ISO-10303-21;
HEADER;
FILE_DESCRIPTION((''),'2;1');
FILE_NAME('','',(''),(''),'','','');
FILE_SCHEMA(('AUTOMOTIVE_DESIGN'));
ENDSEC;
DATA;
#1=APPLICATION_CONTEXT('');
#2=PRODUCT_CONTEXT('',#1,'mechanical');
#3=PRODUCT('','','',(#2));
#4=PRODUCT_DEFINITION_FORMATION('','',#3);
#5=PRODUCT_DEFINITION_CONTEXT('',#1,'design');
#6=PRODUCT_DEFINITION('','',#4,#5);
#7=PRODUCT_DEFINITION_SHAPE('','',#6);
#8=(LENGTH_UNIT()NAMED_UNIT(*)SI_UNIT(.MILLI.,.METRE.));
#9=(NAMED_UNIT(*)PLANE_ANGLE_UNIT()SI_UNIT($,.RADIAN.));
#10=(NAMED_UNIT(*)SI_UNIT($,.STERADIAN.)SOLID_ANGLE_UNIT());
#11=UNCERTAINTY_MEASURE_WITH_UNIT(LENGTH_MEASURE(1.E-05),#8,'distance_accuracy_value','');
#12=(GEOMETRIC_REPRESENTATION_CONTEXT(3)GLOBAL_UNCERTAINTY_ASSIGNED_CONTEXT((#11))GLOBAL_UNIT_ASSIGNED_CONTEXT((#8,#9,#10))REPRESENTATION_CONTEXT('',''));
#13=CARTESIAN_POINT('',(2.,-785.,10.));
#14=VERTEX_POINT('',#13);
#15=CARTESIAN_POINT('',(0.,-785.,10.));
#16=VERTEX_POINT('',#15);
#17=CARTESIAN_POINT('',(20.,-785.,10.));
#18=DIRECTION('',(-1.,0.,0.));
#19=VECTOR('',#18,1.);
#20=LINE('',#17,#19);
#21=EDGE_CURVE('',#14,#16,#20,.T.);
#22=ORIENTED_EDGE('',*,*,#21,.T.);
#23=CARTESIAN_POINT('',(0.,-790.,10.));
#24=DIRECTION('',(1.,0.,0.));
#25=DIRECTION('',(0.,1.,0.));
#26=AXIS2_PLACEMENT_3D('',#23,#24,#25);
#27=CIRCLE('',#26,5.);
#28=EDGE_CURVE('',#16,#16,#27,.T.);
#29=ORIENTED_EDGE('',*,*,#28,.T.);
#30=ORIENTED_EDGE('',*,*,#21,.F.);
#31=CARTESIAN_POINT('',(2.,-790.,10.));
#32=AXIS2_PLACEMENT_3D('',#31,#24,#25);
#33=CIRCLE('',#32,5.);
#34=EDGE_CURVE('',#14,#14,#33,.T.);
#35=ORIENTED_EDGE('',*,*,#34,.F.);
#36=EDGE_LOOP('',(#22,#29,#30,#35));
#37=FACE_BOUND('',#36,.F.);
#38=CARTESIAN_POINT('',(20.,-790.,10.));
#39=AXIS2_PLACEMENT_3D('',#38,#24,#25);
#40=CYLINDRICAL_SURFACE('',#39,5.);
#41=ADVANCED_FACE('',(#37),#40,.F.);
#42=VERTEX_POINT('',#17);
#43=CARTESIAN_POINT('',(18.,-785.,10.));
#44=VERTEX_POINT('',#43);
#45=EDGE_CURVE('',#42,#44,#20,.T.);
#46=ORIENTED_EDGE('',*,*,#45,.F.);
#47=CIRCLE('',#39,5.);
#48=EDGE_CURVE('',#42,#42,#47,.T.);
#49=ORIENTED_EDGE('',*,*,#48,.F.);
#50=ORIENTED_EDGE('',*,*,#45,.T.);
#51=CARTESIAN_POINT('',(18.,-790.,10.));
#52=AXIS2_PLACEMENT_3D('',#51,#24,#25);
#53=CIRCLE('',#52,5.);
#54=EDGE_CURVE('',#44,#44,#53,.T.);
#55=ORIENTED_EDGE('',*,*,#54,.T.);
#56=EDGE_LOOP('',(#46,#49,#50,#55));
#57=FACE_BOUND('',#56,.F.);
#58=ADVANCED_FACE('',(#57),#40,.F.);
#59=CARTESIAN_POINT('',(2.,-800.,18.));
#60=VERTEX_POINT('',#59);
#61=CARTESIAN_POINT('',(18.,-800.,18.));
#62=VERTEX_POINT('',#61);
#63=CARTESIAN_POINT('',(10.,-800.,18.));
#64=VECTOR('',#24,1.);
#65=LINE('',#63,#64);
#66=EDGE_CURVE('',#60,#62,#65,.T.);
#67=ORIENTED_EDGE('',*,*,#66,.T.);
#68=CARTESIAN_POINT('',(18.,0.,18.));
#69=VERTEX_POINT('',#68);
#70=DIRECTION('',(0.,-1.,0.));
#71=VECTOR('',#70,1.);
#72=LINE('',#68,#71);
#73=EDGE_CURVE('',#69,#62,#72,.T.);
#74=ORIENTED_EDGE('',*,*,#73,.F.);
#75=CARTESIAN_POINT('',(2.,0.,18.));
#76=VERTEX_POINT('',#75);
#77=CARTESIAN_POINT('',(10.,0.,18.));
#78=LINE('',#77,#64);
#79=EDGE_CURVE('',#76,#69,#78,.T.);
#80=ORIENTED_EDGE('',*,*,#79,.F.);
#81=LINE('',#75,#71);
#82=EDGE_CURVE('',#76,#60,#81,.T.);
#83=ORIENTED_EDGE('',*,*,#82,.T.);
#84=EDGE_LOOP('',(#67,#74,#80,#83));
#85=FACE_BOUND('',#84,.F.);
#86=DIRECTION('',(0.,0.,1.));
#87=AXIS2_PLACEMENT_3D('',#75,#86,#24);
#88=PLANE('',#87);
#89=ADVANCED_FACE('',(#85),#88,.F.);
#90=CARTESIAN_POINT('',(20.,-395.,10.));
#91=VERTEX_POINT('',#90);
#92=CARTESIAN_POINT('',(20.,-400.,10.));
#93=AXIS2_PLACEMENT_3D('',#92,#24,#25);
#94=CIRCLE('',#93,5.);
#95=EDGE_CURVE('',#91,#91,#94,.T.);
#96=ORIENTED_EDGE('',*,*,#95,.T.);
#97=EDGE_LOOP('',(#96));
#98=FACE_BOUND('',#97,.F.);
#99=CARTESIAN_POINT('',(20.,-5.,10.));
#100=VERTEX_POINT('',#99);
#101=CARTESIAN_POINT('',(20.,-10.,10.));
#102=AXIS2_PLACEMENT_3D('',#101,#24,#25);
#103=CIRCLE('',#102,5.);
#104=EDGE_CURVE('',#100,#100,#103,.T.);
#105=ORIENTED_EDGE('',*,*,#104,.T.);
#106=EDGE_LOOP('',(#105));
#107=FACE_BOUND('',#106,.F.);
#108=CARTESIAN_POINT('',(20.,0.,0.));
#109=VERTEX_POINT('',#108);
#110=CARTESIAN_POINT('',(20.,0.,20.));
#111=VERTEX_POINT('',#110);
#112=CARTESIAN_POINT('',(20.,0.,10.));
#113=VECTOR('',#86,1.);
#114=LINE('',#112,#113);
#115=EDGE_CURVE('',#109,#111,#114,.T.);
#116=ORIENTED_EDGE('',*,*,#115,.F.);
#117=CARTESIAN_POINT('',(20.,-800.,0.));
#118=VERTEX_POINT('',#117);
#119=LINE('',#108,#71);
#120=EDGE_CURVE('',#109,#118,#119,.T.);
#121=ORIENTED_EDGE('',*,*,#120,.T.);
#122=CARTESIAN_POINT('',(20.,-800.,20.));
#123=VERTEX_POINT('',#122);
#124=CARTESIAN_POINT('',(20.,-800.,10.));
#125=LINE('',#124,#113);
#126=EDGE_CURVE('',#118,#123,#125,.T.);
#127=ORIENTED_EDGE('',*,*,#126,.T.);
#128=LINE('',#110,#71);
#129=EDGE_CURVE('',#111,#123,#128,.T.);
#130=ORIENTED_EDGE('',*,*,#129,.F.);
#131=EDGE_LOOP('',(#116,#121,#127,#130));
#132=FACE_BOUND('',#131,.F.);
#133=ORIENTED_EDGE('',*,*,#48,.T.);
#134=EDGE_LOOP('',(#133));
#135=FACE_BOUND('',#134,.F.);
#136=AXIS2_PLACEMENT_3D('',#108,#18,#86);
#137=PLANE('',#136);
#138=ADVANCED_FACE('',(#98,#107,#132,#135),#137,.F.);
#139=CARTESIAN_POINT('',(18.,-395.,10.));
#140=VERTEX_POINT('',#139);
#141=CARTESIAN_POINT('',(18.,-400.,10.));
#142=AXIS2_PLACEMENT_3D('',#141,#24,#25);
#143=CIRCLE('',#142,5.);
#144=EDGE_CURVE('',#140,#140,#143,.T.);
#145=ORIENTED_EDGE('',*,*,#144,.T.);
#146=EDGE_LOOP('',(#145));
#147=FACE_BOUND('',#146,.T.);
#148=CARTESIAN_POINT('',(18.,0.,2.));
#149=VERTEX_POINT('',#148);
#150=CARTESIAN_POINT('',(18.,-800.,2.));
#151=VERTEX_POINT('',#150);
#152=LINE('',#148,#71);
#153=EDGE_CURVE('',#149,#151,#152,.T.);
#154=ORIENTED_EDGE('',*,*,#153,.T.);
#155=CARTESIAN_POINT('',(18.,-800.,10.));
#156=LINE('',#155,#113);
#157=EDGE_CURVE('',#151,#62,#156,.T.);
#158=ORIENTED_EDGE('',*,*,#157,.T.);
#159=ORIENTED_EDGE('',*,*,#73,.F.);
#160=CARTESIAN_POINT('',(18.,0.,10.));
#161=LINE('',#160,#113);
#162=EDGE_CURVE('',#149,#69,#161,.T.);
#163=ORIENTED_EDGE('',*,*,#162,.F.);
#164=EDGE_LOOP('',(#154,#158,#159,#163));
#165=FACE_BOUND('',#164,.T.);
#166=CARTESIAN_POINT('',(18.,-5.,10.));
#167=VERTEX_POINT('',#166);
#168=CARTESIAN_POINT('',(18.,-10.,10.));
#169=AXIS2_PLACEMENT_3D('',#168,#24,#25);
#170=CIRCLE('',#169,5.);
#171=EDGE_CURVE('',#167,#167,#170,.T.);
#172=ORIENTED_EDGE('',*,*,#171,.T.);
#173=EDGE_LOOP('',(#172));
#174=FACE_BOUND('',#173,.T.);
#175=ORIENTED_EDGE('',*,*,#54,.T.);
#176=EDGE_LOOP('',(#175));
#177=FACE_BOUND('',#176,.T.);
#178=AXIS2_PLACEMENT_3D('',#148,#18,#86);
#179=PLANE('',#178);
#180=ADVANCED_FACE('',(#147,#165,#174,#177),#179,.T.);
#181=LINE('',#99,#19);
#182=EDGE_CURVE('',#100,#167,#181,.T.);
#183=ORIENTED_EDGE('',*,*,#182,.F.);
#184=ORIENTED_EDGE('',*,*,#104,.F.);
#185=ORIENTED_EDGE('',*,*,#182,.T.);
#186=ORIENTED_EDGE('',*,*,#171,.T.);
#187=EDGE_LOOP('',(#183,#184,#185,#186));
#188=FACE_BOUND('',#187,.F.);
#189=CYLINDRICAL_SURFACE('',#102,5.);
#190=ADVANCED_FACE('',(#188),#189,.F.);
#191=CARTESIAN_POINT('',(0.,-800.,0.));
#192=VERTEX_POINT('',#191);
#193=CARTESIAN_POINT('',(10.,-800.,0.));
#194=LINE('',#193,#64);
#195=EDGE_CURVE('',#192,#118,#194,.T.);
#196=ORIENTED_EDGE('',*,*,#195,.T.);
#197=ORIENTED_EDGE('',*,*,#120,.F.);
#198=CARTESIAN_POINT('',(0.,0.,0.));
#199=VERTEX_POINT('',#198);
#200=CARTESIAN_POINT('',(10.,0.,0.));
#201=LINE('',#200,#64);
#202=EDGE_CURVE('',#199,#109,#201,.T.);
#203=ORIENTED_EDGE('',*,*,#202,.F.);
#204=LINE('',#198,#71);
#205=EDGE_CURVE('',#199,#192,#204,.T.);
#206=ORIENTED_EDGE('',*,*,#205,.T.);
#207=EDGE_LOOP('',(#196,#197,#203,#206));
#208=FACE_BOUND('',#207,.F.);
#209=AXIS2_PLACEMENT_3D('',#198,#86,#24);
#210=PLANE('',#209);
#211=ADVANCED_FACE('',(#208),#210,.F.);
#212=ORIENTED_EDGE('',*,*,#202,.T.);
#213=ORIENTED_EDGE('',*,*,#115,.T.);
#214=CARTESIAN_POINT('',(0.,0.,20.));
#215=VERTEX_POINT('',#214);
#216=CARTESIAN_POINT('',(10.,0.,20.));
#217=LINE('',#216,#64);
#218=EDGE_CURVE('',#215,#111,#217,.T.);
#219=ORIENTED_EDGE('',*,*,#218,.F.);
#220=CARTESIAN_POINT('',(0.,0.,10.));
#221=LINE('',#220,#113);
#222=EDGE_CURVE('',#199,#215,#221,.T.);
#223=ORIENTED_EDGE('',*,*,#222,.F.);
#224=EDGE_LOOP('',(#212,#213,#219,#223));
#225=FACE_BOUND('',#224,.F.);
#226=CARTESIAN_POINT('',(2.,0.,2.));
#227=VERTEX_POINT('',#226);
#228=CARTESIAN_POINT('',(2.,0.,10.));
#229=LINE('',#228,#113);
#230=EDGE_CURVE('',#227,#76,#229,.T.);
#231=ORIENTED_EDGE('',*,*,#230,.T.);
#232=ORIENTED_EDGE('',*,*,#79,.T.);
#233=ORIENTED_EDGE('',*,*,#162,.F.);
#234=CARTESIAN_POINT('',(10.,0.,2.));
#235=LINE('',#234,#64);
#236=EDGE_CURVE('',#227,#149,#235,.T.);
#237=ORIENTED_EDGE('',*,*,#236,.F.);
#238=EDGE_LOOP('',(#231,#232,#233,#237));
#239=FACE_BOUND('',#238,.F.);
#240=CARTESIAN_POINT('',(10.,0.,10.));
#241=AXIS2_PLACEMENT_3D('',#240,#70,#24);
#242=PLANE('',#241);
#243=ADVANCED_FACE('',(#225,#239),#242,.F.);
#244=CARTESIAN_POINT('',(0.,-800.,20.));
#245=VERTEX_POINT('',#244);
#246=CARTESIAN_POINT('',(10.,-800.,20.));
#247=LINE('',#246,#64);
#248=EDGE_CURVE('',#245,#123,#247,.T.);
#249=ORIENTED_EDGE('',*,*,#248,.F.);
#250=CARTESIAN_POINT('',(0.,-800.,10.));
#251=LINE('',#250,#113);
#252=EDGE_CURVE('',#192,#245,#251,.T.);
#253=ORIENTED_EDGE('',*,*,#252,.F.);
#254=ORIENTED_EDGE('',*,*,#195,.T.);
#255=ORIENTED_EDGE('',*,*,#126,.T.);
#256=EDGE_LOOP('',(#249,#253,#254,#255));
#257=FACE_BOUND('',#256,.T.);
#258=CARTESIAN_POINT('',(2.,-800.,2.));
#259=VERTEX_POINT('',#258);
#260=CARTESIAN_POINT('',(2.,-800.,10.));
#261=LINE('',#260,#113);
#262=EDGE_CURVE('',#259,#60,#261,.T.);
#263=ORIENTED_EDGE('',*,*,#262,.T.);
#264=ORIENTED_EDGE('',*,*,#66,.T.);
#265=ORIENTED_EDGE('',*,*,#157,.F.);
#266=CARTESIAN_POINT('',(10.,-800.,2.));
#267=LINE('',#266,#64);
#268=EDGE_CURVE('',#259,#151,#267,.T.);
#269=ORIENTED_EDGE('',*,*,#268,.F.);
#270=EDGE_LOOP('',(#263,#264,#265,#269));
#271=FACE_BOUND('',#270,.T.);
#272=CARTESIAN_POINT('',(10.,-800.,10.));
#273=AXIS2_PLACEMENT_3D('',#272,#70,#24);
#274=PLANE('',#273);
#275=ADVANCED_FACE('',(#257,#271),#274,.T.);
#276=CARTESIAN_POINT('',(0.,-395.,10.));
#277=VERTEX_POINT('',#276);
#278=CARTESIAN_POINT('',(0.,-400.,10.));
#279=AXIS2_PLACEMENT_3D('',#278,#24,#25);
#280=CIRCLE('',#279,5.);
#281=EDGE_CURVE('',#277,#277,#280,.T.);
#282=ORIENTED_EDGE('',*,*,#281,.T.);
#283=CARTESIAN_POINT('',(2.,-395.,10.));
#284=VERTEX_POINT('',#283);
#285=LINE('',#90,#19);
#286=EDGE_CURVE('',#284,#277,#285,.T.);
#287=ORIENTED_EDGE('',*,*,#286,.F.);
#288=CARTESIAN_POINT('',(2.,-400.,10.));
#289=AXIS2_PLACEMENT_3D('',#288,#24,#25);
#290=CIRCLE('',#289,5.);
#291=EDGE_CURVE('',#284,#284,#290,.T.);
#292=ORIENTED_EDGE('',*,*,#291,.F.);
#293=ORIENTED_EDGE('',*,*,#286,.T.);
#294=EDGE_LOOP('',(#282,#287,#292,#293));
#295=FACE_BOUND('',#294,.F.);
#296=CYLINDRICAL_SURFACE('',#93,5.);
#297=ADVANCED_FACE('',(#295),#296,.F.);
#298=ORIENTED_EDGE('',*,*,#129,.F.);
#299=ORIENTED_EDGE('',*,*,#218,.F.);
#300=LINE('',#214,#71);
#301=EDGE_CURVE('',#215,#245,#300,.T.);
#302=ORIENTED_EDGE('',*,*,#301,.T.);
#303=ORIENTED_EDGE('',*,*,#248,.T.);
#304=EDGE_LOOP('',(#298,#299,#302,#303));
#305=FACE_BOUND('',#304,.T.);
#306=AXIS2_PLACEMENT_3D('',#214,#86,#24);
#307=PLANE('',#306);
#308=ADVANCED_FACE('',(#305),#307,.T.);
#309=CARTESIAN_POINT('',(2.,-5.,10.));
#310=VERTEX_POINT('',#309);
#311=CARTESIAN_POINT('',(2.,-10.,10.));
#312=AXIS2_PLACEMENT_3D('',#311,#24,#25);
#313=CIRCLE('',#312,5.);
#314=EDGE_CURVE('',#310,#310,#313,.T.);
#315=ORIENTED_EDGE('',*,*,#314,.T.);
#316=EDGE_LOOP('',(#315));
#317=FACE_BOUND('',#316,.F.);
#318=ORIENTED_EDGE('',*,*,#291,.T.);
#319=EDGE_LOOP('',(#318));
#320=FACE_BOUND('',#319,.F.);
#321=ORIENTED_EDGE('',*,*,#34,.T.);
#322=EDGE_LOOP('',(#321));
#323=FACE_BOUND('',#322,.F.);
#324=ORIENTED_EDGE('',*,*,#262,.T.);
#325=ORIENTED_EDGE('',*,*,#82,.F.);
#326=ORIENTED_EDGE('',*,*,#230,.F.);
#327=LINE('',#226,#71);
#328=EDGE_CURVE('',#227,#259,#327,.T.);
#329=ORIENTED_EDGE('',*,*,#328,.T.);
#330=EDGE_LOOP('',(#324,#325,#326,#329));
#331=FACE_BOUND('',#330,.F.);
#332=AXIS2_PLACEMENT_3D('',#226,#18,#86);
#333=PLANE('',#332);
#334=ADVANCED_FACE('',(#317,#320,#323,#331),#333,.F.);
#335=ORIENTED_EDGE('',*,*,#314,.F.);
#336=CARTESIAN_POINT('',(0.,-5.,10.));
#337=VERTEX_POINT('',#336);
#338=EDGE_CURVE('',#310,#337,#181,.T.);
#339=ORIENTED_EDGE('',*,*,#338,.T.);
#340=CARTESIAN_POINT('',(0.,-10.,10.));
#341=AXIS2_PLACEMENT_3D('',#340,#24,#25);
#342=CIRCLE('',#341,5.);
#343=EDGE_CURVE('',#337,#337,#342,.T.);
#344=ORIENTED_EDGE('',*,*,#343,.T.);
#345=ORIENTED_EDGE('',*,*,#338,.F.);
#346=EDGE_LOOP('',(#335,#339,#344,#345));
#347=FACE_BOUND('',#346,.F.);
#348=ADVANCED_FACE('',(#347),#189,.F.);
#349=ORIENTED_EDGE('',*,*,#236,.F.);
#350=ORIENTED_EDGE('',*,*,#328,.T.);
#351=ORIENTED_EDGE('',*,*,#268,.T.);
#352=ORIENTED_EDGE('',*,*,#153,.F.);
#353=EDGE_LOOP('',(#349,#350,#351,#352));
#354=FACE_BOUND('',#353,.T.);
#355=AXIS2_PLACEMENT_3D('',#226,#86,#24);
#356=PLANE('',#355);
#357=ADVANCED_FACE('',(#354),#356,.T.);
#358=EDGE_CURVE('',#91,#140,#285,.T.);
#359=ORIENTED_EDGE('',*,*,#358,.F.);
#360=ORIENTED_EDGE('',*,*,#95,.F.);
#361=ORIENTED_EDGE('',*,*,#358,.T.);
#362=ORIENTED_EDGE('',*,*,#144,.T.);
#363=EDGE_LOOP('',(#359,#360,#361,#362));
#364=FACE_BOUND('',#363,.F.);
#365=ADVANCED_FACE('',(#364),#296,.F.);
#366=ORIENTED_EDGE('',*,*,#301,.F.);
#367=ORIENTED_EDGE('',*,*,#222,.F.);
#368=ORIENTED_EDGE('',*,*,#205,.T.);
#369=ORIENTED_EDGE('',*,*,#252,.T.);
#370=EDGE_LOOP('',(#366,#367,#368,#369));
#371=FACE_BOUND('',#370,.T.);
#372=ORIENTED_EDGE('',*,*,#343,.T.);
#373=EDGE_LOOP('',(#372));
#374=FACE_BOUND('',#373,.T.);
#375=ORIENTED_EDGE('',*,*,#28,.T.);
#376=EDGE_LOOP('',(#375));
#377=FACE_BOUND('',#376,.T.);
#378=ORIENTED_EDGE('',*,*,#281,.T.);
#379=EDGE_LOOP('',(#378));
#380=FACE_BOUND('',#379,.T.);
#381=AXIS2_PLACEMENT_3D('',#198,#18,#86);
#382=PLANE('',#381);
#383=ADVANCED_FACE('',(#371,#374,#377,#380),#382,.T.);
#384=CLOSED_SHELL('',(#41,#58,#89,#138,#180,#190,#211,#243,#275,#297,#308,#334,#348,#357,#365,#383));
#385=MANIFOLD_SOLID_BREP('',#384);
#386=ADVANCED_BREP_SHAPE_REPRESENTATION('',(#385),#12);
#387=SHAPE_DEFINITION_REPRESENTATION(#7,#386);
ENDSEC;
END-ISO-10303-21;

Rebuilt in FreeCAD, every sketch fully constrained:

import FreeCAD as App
import Part
import Sketcher

V = App.Vector


def add_polygon(sketch, points):
    """Adds a closed chain of lines whose ends are joined by coincident constraints."""
    first, n = sketch.GeometryCount, len(points)
    for a, b in zip(points, points[1:] + points[:1]):
        sketch.addGeometry(Part.LineSegment(App.Vector(*a, 0), App.Vector(*b, 0)), False)
    for i in range(n):
        sketch.addConstraint(Sketcher.Constraint("Coincident", first + i, 2, first + (i + 1) % n, 1))

doc = App.newDocument("Part")
body = doc.addObject("PartDesign::Body", "Body")

# Sketch on XZ plane
sketch1 = body.newObject("Sketcher::SketchObject", "Sketch")
sketch1.AttachmentSupport = (doc.getObject("XZ_Plane"), [""])
sketch1.MapMode = "FlatFace"
add_polygon(sketch1, [(0, 20), (0, 0), (20, 0), (20, 20)])  # lines 0-3
add_polygon(sketch1, [(18, 2), (2, 2), (2, 18), (18, 18)])  # lines 4-7
sketch1.addConstraint([
    Sketcher.Constraint("Vertical", 0),
    Sketcher.Constraint("Horizontal", 1),
    Sketcher.Constraint("Vertical", 2),
    Sketcher.Constraint("Horizontal", 3),
    Sketcher.Constraint("Horizontal", 4),
    Sketcher.Constraint("Vertical", 5),
    Sketcher.Constraint("Horizontal", 6),
    Sketcher.Constraint("Vertical", 7),
    Sketcher.Constraint("Coincident", 0, 2, -1, 1),
    Sketcher.Constraint("Equal", 3, 0),
    Sketcher.Constraint("Equal", 6, 5),
    Sketcher.Constraint("DistanceX", 1, 1, 1, 2, 20.0),
    Sketcher.Constraint("DistanceX", 4, 2, 4, 1, 16.0),
    Sketcher.Constraint("DistanceX", -1, 1, 4, 2, 2.0),
    Sketcher.Constraint("DistanceY", -1, 1, 4, 2, 2.0),
])
pad1 = body.newObject("PartDesign::Pad", "Pad")
pad1.Profile = sketch1
pad1.Length = 800

# Sketch on YZ plane
sketch2 = body.newObject("Sketcher::SketchObject", "Sketch001")
sketch2.AttachmentSupport = (doc.getObject("YZ_Plane"), [""])
sketch2.MapMode = "FlatFace"
sketch2.AttachmentOffset = App.Placement(V(0, 0, 20), App.Rotation())
sketch2.addGeometry([
    Part.Circle(V(-790, 10, 0), V(0, 0, 1), 5),
    Part.Circle(V(-400, 10, 0), V(0, 0, 1), 5),
    Part.Circle(V(-10, 10, 0), V(0, 0, 1), 5),
], False)
sketch2.addConstraint([
    Sketcher.Constraint("Equal", 0, 1),
    Sketcher.Constraint("Equal", 1, 2),
    Sketcher.Constraint("Horizontal", 0, 3, 1, 3),
    Sketcher.Constraint("Horizontal", 1, 3, 2, 3),
    Sketcher.Constraint("Diameter", 0, 10.0),
    Sketcher.Constraint("DistanceX", 0, 3, -1, 1, 790.0),
    Sketcher.Constraint("DistanceY", -1, 1, 0, 3, 10.0),
    Sketcher.Constraint("DistanceX", 1, 3, -1, 1, 400.0),
    Sketcher.Constraint("DistanceX", 2, 3, -1, 1, 10.0),
])
pocket1 = body.newObject("PartDesign::Pocket", "Pocket")
pocket1.Profile = sketch2
pocket1.Type = "ThroughAll"

doc.recompute()
